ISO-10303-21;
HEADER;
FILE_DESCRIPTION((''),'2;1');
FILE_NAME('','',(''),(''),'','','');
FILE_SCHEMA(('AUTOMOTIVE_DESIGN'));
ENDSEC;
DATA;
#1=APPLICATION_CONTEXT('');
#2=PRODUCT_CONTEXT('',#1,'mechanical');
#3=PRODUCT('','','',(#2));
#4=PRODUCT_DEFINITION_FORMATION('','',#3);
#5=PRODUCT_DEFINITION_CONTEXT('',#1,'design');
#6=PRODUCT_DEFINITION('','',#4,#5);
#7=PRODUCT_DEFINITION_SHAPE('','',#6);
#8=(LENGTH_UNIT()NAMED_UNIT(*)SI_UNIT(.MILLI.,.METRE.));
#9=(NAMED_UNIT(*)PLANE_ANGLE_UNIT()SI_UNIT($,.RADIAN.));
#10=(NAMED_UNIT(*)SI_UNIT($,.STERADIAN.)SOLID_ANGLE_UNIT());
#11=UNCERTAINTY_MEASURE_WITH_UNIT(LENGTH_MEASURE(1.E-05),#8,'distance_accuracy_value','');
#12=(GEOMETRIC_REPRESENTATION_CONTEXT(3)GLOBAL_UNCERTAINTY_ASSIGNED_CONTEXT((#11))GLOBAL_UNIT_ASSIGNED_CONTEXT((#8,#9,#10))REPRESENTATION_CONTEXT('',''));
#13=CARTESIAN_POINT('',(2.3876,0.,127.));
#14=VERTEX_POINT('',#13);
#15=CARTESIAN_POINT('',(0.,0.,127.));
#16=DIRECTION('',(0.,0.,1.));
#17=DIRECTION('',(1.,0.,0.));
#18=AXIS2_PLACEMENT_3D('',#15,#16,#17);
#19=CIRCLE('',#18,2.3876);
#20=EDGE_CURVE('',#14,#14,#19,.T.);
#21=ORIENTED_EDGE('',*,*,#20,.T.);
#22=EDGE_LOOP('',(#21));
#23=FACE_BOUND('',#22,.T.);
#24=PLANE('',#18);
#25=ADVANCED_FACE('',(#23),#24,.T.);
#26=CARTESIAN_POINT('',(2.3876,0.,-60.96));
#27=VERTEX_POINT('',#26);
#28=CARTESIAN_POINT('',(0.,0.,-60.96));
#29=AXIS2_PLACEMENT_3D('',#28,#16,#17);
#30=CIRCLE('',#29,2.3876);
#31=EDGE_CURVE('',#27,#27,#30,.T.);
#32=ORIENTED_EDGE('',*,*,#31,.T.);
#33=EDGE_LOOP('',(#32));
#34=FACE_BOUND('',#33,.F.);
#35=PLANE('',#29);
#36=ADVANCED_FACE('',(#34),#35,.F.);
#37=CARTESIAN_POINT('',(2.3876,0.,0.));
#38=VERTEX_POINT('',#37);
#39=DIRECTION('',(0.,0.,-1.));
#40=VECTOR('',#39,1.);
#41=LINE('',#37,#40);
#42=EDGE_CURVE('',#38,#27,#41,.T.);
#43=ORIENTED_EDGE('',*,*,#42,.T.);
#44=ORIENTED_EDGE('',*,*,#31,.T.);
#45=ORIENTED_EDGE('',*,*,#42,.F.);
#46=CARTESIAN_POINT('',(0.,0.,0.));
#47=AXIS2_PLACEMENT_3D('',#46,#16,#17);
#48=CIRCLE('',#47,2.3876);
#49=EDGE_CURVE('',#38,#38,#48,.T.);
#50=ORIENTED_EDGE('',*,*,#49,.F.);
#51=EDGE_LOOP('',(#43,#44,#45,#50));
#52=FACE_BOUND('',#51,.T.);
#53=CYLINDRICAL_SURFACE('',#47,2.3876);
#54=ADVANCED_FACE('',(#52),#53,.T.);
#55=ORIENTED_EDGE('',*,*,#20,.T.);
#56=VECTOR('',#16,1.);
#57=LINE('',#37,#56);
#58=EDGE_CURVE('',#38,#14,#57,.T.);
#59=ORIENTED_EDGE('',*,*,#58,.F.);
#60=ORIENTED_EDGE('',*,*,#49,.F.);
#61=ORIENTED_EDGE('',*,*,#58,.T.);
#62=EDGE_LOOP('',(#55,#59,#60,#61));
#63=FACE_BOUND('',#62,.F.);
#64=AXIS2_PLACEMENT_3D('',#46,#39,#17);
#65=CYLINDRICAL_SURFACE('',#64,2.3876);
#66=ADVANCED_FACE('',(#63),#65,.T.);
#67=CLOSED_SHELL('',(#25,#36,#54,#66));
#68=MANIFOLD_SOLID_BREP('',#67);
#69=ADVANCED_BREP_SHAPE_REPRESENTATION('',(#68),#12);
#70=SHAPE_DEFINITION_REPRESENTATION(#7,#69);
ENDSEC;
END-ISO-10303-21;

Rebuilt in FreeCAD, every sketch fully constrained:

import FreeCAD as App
import Part
import Sketcher
from FreeCAD import Vector
Q = App.Units.Quantity

doc = App.newDocument("Part")
body = doc.addObject("PartDesign::Body", "Body")

# Sketch on XY plane
sketch1 = body.newObject("Sketcher::SketchObject", "Sketch")
sketch1.AttachmentSupport = (doc.getObject("XY_Plane"), [""])
sketch1.MapMode = "FlatFace"
sketch1.addGeometry(Part.Circle(Vector(0, 0, 0), Vector(0, 0, 1), 2.4), False)
sketch1.addConstraint([
    Sketcher.Constraint("Coincident", 0, 3, -1, 1),
    Sketcher.Constraint("Diameter", 0, Q("0.188 in")),
])
pad1 = body.newObject("PartDesign::Pad", "Pad")
pad1.Profile = sketch1
pad1.Type = "TwoLengths"
pad1.Length = Q("5 in")
pad1.Length2 = Q("2.4 in")

doc.recompute()
